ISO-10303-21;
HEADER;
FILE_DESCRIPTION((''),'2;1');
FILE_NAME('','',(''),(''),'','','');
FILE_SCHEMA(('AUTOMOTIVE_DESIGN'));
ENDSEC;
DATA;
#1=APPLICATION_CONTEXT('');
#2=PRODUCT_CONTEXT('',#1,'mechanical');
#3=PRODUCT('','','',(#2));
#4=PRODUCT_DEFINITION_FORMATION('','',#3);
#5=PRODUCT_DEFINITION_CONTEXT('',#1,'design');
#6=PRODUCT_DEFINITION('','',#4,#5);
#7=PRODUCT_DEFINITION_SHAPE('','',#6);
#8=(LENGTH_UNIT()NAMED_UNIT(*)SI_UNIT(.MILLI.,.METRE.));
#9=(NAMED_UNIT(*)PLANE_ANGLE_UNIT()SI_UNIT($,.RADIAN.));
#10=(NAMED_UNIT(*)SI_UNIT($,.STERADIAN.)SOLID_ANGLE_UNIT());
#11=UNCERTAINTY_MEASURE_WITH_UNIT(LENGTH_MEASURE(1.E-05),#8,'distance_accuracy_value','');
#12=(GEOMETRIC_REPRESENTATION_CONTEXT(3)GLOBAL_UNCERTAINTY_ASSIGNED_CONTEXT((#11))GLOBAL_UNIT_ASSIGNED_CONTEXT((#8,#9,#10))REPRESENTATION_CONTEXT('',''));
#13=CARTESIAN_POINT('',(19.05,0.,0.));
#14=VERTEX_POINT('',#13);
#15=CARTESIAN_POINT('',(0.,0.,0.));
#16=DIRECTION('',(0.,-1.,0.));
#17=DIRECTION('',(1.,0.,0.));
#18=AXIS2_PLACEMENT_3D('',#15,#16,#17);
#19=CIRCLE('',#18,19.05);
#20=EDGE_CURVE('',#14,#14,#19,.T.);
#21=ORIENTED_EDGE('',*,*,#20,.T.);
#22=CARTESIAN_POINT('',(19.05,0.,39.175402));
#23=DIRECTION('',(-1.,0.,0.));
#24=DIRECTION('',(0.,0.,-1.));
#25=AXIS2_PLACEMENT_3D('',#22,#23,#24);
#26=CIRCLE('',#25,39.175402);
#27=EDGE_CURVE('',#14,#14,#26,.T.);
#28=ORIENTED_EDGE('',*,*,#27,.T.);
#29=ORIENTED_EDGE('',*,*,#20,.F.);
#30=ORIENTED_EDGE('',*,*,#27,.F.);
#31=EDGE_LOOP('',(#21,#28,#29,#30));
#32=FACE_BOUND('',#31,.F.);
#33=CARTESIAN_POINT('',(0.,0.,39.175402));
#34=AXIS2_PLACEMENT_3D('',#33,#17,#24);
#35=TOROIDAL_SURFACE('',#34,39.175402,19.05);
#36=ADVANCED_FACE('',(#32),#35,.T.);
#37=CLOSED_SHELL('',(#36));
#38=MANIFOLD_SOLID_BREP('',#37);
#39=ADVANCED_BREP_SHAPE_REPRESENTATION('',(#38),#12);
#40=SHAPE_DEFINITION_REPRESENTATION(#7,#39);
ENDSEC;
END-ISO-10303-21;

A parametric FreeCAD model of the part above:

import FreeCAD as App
import Part
import Sketcher
from FreeCAD import Vector
Q = App.Units.Quantity

doc = App.newDocument("Part")
body = doc.addObject("PartDesign::Body", "Body")

sketch1 = body.newObject("Sketcher::SketchObject", "Sketch")
sketch1.AttachmentSupport = (doc.getObject("XZ_Plane"), [""])
sketch1.MapMode = "FlatFace"
sketch1.addGeometry(Part.Circle(Vector(0, 0, 0), Vector(0, 0, 1), 19.05), False)
sketch1.addGeometry(Part.LineSegment(Vector(0, 39.175402, 0), Vector(-10, 39.175402, 0)), True)
sketch1.addConstraint(Sketcher.Constraint("Horizontal", 1))
sketch1.addConstraint(Sketcher.Constraint("Coincident", 0, 3, -1, 1))
sketch1.addConstraint(Sketcher.Constraint("PointOnObject", 1, 1, -2))
sketch1.addConstraint(Sketcher.Constraint("Diameter", 0, Q("1.5 in")))
sketch1.addConstraint(Sketcher.Constraint("DistanceX", 1, 2, 1, 1, Q("10 mm")))
sketch1.addConstraint(Sketcher.Constraint("DistanceY", -1, 1, 1, 1, Q("39.175402 mm")))
revolution = body.newObject("PartDesign::Revolution", "Revolution")
revolution.Profile = sketch1
revolution.ReferenceAxis = (sketch1, ["Axis0"])
revolution.Angle = 360

doc.recompute()
